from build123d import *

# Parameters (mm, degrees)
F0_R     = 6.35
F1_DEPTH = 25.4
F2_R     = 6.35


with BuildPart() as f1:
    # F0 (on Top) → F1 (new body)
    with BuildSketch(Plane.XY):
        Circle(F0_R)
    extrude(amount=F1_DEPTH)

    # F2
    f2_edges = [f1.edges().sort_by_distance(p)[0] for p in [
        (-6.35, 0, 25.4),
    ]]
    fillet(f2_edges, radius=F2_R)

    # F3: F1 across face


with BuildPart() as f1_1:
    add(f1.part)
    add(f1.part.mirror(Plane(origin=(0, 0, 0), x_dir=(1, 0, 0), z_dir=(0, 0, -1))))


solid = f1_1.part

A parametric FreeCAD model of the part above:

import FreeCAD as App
import Part
import Sketcher

V = App.Vector
Q = App.Units.Quantity


def edges_at(feature, points):
    """Names of the edges that pass closest to the given points."""
    edges = feature.Shape.Edges
    near = lambda p: min(range(len(edges)), key=lambda i: edges[i].distToShape(Part.Vertex(*p))[0])
    return sorted({f"Edge{near(p) + 1}" for p in points})

doc = App.newDocument("Part")
body = doc.addObject("PartDesign::Body", "Body")

# Sketch on XY plane
sketch1 = body.newObject("Sketcher::SketchObject", "Sketch")
sketch1.AttachmentSupport = (doc.getObject("XY_Plane"), [""])
sketch1.MapMode = "FlatFace"
sketch1.addGeometry(Part.Circle(V(0, 0, 0), V(0, 0, 1), 6.35), False)
sketch1.addConstraint([
    Sketcher.Constraint("Coincident", 0, 3, -1, 1),
    Sketcher.Constraint("Diameter", 0, Q("0.5 in")),
])
pad1 = body.newObject("PartDesign::Pad", "Pad")
pad1.Profile = sketch1
pad1.Length = Q("1 in")
doc.recompute()

fillet = body.newObject("PartDesign::Fillet", "Fillet")
fillet.Base = (pad1, edges_at(pad1, [(-6.35, 0, 25.4)]))
fillet.Radius = Q("0.25 in")
body2 = doc.addObject("PartDesign::Body", "Body001")
doc.recompute()

body2.BaseFeature = body
doc.recompute()

mirroring = doc.addObject("Part::Mirroring", "Mirroring")
mirroring.Source = body
mirroring.Base = V(0, 0, 0)
mirroring.Normal = V(0, 0, -1)
body3 = doc.addObject("PartDesign::Body", "Body002")
body3.BaseFeature = mirroring
boolean = body2.newObject("PartDesign::Boolean", "Boolean")
boolean.Type = "Fuse"
boolean.addObjects([body3])
doc.recompute()
mirroring.Visibility = False

doc.recompute()
